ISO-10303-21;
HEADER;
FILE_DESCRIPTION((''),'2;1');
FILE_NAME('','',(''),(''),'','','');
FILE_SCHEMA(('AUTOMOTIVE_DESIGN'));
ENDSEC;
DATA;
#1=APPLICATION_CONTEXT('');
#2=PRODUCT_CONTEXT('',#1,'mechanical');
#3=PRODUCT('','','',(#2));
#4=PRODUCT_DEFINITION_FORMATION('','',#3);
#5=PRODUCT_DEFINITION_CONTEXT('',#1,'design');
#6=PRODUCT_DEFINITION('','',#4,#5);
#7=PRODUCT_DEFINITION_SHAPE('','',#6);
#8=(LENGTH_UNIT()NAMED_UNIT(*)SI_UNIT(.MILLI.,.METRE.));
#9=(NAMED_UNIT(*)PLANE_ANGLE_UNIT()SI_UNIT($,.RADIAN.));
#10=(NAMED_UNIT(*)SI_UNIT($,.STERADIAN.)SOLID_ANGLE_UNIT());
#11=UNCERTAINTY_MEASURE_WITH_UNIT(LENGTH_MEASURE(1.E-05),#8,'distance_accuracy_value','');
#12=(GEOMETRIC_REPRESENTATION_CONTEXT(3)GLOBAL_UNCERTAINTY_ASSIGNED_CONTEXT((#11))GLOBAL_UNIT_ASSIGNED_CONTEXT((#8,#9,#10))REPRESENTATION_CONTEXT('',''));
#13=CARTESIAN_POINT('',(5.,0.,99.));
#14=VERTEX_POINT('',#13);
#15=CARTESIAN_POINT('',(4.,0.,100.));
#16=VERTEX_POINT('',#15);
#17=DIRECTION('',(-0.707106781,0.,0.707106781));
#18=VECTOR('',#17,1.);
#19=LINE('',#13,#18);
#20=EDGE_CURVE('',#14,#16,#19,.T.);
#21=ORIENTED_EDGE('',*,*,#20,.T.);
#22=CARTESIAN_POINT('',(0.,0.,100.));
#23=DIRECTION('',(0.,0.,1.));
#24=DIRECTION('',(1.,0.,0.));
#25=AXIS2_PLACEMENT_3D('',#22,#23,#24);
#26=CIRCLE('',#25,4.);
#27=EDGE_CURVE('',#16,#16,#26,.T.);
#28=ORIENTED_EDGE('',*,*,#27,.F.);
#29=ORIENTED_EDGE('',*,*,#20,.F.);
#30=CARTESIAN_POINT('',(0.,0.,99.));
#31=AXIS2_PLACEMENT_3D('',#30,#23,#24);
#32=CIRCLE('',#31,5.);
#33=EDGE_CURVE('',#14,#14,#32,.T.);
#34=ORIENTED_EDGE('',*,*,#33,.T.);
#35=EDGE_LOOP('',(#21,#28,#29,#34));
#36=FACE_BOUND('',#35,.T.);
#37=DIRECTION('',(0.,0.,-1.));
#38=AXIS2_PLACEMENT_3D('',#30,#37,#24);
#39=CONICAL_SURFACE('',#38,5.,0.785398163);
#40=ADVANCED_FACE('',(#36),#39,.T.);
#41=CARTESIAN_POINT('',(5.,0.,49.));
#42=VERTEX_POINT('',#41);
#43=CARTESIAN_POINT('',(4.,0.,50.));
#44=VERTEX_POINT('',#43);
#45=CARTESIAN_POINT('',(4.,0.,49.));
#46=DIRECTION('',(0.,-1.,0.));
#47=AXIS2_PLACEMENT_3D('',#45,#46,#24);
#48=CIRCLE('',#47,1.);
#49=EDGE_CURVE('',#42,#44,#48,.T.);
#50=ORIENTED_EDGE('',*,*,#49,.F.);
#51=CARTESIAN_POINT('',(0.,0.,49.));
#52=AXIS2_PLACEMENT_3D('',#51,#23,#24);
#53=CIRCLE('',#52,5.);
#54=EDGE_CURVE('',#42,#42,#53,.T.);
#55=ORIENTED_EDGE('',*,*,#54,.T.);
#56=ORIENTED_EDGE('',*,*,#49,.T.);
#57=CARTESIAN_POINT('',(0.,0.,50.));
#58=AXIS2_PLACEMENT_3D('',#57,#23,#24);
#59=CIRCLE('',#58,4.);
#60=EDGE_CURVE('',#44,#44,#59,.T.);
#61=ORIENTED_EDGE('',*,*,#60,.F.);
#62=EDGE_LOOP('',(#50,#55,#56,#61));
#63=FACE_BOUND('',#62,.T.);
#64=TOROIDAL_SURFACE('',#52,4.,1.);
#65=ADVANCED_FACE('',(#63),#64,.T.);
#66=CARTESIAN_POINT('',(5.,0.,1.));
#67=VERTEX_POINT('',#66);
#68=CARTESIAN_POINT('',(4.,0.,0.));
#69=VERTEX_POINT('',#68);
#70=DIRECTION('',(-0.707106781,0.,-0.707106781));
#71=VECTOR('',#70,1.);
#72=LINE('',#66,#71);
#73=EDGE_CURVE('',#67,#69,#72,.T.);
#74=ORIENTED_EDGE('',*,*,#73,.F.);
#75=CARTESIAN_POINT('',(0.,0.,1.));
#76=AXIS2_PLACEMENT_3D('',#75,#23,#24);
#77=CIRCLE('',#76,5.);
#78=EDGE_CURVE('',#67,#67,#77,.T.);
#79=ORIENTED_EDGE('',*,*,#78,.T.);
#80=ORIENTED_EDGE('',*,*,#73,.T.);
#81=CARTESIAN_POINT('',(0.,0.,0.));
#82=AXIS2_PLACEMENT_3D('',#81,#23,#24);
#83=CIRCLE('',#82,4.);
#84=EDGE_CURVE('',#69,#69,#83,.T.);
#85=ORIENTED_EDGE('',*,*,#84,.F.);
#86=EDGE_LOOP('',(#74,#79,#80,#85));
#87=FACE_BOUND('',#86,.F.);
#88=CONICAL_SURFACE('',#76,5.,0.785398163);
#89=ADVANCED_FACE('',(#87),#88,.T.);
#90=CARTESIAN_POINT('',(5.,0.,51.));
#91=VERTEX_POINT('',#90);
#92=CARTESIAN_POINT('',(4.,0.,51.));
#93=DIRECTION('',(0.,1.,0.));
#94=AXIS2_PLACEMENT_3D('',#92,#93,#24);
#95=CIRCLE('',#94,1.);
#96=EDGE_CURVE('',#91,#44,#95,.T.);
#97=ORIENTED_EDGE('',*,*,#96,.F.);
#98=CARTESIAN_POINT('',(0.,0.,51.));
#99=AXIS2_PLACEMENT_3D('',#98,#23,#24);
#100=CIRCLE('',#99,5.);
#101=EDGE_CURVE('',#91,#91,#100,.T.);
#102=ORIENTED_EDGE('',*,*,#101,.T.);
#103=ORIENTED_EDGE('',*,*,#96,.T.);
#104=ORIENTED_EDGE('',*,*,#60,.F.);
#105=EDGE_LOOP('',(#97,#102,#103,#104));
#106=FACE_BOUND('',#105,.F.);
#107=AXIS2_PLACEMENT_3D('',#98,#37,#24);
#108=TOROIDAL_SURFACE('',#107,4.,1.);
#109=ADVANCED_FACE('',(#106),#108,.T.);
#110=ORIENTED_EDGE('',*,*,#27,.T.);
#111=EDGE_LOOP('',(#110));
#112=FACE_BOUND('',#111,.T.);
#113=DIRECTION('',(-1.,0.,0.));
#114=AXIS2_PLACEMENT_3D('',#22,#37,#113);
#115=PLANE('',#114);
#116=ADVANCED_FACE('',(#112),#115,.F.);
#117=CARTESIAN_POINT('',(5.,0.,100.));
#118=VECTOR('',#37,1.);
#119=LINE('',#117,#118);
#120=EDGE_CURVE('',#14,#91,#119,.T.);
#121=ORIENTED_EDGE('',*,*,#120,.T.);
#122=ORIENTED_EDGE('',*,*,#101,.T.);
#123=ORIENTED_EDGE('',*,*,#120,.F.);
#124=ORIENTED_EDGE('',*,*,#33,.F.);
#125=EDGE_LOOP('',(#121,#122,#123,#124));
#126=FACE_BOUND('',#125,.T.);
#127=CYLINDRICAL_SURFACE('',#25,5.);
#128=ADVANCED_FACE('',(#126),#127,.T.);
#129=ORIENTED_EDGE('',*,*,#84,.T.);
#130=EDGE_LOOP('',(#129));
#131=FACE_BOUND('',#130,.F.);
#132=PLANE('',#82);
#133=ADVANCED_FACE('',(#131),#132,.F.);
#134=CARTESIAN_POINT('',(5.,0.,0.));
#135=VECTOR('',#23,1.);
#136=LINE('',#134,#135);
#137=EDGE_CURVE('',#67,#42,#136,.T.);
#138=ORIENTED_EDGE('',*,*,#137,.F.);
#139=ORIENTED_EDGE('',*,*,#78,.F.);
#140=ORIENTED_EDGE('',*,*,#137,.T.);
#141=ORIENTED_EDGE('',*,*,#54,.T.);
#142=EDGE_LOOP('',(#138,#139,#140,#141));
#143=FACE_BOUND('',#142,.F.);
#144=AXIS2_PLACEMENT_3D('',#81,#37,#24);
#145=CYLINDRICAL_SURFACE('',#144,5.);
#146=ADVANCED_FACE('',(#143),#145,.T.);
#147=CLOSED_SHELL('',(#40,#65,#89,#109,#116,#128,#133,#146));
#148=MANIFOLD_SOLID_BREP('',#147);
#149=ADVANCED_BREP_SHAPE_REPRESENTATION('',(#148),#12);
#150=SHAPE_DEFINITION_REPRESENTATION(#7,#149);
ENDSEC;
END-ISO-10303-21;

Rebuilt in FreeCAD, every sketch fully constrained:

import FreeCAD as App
import Part
import Sketcher
Q = App.Units.Quantity


def edges_at(feature, points):
    """Names of the edges that pass closest to the given points."""
    edges = feature.Shape.Edges
    near = lambda p: min(range(len(edges)), key=lambda i: edges[i].distToShape(Part.Vertex(*p))[0])
    return sorted({f"Edge{near(p) + 1}" for p in points})

doc = App.newDocument("Part")
body = doc.addObject("PartDesign::Body", "Body")

# Sketch on XY plane
sketch1 = doc.addObject("Sketcher::SketchObject", "Sketch")
body.addObject(sketch1)
sketch1.AttachmentSupport = (doc.XY_Plane, [""])
sketch1.MapMode = "FlatFace"
sketch1.addGeometry(Part.Circle(App.Vector(0, 0, 0), App.Vector(0, 0, 1), 5), False)
sketch1.addConstraint([
    Sketcher.Constraint("Coincident", 0, 3, -1, 1),
    Sketcher.Constraint("Diameter", 0, Q("10 mm")),
])
pad1 = doc.addObject("PartDesign::Pad", "Pad")
body.addObject(pad1)
pad1.Profile = sketch1
pad1.Length = 50
doc.recompute()

fillet = doc.addObject("PartDesign::Fillet", "Fillet")
body.addObject(fillet)
fillet.Base = (pad1, edges_at(pad1, [(-5, 0, 50)]))
fillet.Radius = 1
doc.recompute()

chamfer = doc.addObject("PartDesign::Chamfer", "Chamfer")
body.addObject(chamfer)
chamfer.Base = (fillet, edges_at(fillet, [(-5, 0, 0)]))
chamfer.Size = 1
body2 = doc.addObject("PartDesign::Body", "Body001")
doc.recompute()

body2.BaseFeature = body
doc.recompute()

mirroring = doc.addObject("Part::Mirroring", "Mirroring")
mirroring.Source = body
mirroring.Base = App.Vector(0, 0, 50)
mirroring.Normal = App.Vector(0, 0, 1)
body3 = doc.addObject("PartDesign::Body", "Body002")
body3.BaseFeature = mirroring
boolean = doc.addObject("PartDesign::Boolean", "Boolean")
body2.addObject(boolean)
boolean.Type = "Fuse"
boolean.addObjects([body3])
doc.recompute()
mirroring.Visibility = False

doc.recompute()
